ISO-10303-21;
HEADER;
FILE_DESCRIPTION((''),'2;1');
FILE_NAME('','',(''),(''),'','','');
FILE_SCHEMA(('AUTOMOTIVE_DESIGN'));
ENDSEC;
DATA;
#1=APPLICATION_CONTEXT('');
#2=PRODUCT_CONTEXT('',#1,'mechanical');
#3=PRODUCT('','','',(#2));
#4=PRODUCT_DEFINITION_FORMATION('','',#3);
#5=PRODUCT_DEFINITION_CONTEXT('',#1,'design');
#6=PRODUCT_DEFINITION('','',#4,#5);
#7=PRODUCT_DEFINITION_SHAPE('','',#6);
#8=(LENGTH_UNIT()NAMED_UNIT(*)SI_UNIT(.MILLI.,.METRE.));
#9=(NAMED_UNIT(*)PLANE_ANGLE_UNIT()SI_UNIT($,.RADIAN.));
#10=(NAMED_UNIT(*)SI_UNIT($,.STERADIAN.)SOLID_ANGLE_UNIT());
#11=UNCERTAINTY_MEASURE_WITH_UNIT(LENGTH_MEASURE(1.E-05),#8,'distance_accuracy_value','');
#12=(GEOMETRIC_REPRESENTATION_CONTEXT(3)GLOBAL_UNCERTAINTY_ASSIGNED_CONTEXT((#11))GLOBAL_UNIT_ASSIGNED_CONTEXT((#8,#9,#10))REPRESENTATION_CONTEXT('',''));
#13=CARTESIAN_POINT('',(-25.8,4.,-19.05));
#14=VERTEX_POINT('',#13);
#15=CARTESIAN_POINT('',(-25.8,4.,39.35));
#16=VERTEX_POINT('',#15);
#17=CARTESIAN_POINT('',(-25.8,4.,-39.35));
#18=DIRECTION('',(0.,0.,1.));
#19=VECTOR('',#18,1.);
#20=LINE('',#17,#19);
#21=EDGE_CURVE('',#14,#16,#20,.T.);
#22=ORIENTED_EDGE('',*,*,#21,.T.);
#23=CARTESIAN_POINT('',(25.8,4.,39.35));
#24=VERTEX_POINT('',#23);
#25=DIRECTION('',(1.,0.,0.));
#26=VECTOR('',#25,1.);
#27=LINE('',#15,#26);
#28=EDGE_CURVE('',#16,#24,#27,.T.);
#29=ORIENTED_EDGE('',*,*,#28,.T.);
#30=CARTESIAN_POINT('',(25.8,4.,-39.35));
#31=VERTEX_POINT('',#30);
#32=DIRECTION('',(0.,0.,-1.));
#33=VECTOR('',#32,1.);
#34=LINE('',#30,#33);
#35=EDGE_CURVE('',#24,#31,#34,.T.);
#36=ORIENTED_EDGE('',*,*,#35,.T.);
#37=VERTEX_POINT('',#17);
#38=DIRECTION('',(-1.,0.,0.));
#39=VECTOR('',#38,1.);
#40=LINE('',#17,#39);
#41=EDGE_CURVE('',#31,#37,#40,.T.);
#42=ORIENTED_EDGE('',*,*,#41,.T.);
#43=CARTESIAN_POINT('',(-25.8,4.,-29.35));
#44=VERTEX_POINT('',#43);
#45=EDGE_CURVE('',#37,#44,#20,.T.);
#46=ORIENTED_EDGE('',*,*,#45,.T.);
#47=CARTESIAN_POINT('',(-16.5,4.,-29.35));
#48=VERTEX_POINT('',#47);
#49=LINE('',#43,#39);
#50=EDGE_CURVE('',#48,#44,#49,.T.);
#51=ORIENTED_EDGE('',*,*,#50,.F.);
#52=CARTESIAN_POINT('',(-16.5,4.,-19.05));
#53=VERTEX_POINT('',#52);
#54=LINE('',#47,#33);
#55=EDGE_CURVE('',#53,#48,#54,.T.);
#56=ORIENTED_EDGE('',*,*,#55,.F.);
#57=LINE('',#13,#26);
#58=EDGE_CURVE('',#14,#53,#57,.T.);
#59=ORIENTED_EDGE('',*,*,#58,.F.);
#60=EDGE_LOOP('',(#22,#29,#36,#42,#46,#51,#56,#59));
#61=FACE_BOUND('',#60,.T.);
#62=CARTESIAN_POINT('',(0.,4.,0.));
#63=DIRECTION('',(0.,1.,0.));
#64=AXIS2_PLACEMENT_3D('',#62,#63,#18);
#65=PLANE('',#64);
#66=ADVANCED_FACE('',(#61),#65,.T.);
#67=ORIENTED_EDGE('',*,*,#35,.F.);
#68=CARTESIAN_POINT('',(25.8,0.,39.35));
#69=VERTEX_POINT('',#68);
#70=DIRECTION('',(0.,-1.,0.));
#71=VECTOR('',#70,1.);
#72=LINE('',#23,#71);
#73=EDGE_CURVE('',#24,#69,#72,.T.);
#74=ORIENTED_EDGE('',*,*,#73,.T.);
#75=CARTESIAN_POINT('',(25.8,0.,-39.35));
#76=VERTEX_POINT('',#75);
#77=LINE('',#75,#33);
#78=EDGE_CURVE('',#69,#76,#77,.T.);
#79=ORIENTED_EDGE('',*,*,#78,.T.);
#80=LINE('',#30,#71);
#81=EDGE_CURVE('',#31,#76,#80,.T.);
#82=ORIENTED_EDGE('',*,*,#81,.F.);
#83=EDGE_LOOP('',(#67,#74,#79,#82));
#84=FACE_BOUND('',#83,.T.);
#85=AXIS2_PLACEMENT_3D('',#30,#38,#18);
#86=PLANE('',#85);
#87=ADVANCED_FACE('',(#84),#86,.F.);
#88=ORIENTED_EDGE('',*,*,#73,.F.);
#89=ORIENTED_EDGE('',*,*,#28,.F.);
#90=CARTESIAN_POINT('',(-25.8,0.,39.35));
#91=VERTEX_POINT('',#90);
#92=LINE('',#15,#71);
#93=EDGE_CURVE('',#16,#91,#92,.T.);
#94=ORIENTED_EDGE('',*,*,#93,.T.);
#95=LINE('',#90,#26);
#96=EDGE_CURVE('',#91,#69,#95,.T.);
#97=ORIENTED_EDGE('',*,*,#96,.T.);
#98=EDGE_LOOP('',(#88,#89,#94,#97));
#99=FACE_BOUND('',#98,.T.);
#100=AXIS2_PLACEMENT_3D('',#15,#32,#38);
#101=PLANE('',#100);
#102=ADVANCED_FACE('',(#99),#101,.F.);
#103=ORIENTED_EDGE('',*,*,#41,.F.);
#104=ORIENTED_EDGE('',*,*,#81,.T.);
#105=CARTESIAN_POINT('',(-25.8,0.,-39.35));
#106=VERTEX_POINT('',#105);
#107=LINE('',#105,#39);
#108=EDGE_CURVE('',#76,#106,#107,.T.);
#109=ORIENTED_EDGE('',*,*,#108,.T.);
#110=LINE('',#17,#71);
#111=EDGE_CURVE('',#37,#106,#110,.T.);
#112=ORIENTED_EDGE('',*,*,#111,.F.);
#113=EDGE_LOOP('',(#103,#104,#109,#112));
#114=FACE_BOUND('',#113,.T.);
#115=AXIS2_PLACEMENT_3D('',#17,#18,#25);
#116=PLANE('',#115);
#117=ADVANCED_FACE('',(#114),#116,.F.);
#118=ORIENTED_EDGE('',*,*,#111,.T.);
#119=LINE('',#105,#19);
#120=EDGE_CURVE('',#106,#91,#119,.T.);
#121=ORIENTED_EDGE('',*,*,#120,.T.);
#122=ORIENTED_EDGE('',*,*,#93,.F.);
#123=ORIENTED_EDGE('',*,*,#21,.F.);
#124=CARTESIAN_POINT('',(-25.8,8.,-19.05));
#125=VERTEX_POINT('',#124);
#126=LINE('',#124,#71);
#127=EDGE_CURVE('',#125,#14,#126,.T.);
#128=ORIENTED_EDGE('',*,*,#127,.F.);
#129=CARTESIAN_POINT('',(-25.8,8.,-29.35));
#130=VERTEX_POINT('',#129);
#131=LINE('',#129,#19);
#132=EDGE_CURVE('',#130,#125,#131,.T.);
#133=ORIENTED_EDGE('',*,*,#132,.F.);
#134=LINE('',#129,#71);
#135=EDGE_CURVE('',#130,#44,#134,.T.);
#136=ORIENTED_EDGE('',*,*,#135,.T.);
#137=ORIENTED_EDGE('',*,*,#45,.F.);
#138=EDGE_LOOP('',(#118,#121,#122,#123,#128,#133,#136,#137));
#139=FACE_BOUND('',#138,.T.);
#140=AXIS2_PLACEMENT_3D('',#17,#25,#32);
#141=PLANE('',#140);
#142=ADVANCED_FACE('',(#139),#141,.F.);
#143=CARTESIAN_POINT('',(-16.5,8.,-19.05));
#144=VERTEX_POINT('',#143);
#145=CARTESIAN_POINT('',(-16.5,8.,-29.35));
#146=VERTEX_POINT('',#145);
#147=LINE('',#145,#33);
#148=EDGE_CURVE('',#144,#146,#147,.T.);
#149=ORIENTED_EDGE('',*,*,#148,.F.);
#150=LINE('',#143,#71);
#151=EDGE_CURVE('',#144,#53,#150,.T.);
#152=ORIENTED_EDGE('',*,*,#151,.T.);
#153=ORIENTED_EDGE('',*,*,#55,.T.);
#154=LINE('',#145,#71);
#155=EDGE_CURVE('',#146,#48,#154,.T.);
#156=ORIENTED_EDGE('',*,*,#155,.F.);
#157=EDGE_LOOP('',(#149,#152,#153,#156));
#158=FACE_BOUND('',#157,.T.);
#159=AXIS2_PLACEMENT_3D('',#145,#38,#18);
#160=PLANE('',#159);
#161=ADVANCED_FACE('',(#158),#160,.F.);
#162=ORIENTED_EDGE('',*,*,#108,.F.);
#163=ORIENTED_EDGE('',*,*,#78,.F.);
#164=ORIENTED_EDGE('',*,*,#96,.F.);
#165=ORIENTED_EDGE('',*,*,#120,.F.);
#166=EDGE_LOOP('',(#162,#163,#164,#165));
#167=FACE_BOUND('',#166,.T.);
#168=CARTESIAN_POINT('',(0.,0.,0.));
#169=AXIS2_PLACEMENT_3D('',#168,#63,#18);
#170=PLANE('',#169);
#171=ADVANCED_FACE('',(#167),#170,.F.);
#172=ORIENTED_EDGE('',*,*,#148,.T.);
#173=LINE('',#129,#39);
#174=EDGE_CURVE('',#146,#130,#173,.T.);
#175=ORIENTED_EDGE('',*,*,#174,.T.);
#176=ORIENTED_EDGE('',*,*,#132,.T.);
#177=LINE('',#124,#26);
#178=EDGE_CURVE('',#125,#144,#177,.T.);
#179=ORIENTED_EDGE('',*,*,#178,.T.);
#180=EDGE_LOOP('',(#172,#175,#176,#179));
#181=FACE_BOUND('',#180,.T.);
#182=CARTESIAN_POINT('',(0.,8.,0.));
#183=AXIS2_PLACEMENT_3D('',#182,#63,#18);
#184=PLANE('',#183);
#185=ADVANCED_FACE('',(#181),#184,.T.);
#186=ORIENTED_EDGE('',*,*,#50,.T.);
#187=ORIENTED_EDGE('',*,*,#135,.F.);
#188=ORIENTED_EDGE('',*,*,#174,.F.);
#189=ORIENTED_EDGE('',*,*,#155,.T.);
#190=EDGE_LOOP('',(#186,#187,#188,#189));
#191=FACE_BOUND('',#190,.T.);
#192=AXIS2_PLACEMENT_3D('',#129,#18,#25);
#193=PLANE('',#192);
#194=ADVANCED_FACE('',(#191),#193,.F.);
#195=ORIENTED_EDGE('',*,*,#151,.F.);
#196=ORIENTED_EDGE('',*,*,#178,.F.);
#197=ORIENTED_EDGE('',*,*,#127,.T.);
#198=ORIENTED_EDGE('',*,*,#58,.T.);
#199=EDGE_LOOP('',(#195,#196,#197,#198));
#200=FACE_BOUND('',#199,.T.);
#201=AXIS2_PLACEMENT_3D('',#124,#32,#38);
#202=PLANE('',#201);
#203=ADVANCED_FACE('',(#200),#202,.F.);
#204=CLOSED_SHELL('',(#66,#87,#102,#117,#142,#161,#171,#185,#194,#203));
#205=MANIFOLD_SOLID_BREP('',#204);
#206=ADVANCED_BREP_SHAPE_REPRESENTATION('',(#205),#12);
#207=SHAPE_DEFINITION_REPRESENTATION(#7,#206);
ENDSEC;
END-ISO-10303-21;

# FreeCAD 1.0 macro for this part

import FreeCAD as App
import Part
import Sketcher
Q = App.Units.Quantity

doc = App.newDocument("Part")
body = doc.addObject("PartDesign::Body", "Body")

sketch1 = body.newObject("Sketcher::SketchObject", "Sketch")
sketch1.AttachmentSupport = (doc.getObject("XZ_Plane"), [""])
sketch1.MapMode = "FlatFace"
sketch1.addGeometry([
    Part.LineSegment(App.Vector(-26, -39, 0), App.Vector(-26, 39, 0)),
    Part.LineSegment(App.Vector(-26, 39, 0), App.Vector(26, 39, 0)),
    Part.LineSegment(App.Vector(26, 39, 0), App.Vector(26, -39, 0)),
    Part.LineSegment(App.Vector(26, -39, 0), App.Vector(-26, -39, 0)),
], False)
sketch1.addConstraint([
    Sketcher.Constraint("Coincident", 0, 2, 1, 1),
    Sketcher.Constraint("Coincident", 1, 2, 2, 1),
    Sketcher.Constraint("Coincident", 2, 2, 3, 1),
    Sketcher.Constraint("Coincident", 3, 2, 0, 1),
    Sketcher.Constraint("Vertical", 0),
    Sketcher.Constraint("Horizontal", 1),
    Sketcher.Constraint("Vertical", 2),
    Sketcher.Constraint("Horizontal", 3),
    Sketcher.Constraint("Symmetric", 0, 2, 2, 2, -1, 1),
    Sketcher.Constraint("DistanceX", 1, 1, 1, 2, Q("51.6 mm")),
    Sketcher.Constraint("DistanceY", 0, 1, 0, 2, Q("78.7 mm")),
])
pad1 = body.newObject("PartDesign::Pad", "Pad")
pad1.Profile = sketch1
pad1.Length = 4
pad1.Reversed = True

sketch2 = body.newObject("Sketcher::SketchObject", "Sketch001")
sketch2.AttachmentSupport = (doc.getObject("XZ_Plane"), [""])
sketch2.MapMode = "FlatFace"
sketch2.AttachmentOffset = App.Placement(App.Vector(0, 0, -4), App.Rotation())
sketch2.addGeometry([
    Part.LineSegment(App.Vector(-26, -29, 0), App.Vector(-26, -19, 0)),
    Part.LineSegment(App.Vector(-26, -19, 0), App.Vector(-16, -19, 0)),
    Part.LineSegment(App.Vector(-16, -19, 0), App.Vector(-16, -29, 0)),
    Part.LineSegment(App.Vector(-16, -29, 0), App.Vector(-26, -29, 0)),
], False)
sketch2.addConstraint([
    Sketcher.Constraint("Coincident", 0, 2, 1, 1),
    Sketcher.Constraint("Coincident", 1, 2, 2, 1),
    Sketcher.Constraint("Coincident", 2, 2, 3, 1),
    Sketcher.Constraint("Coincident", 3, 2, 0, 1),
    Sketcher.Constraint("Vertical", 0),
    Sketcher.Constraint("Horizontal", 1),
    Sketcher.Constraint("Vertical", 2),
    Sketcher.Constraint("Horizontal", 3),
    Sketcher.Constraint("DistanceX", 1, 1, 1, 2, Q("9.3 mm")),
    Sketcher.Constraint("DistanceY", 0, 1, 0, 2, Q("10.3 mm")),
    Sketcher.Constraint("DistanceX", 0, 2, -1, 1, Q("25.8 mm")),
    Sketcher.Constraint("DistanceY", 0, 2, -1, 1, Q("19.05 mm")),
])
pad2 = body.newObject("PartDesign::Pad", "Pad001")
pad2.Profile = sketch2
pad2.Length = 4
pad2.Reversed = True

doc.recompute()
